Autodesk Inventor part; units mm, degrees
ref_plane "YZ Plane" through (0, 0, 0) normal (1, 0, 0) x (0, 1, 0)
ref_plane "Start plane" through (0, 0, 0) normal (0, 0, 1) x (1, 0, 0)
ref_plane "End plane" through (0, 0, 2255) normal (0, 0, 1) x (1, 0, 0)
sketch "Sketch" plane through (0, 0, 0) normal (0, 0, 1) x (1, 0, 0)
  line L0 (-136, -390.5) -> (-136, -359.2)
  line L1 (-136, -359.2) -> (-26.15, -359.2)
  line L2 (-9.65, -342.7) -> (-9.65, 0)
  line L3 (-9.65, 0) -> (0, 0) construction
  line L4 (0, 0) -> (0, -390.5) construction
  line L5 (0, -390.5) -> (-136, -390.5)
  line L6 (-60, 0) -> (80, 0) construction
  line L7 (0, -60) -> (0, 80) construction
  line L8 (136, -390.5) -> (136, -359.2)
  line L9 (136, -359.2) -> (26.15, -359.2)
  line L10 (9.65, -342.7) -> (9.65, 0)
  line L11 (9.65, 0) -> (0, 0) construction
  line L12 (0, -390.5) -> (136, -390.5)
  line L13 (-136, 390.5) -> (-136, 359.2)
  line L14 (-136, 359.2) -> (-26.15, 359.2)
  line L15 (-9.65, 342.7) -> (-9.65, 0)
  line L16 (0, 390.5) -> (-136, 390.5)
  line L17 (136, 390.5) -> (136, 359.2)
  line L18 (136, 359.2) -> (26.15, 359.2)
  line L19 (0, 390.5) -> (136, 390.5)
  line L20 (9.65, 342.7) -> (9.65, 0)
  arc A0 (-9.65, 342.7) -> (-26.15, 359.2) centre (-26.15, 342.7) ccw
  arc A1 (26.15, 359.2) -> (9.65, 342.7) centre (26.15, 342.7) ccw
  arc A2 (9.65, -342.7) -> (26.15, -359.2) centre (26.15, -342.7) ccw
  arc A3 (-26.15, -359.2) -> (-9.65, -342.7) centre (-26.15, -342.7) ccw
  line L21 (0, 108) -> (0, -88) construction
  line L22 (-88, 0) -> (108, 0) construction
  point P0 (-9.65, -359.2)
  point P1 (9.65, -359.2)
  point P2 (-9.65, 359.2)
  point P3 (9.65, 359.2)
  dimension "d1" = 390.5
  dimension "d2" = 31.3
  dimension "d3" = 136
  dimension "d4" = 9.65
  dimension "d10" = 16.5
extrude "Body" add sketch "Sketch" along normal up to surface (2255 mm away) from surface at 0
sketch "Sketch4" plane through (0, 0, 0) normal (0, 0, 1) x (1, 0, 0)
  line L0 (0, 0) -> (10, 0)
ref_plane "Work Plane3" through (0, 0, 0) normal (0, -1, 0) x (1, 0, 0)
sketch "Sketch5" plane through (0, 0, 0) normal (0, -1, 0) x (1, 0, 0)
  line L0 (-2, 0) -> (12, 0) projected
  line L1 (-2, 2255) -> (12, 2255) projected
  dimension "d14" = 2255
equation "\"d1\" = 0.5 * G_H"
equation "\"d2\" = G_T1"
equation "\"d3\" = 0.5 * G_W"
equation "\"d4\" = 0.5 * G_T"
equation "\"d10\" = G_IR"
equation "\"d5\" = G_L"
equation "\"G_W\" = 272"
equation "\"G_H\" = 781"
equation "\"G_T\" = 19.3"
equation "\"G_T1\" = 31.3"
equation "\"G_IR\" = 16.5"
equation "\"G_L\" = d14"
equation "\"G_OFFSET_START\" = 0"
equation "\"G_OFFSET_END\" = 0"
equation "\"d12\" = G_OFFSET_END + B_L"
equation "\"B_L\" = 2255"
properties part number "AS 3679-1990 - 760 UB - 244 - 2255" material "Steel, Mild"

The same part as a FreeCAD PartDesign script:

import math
import FreeCAD as App
import Part
import Sketcher
from FreeCAD import Vector

doc = App.newDocument("Part")
body = doc.addObject("PartDesign::Body", "Body")

sketch1 = body.newObject("Sketcher::SketchObject", "Sketch")
sketch1.AttachmentSupport = (doc.getObject("XY_Plane"), [""])
sketch1.MapMode = "FlatFace"
sketch1.addGeometry(Part.LineSegment(Vector(-136, -359, 0), Vector(-136, -390, 0)), False)
sketch1.addGeometry(Part.LineSegment(Vector(-136, -390, 0), Vector(136, -390, 0)), False)
sketch1.addGeometry(Part.LineSegment(Vector(136, -390, 0), Vector(136, -359, 0)), False)
sketch1.addGeometry(Part.LineSegment(Vector(136, -359, 0), Vector(26, -359, 0)), False)
sketch1.addGeometry(Part.ArcOfCircle(Part.Circle(Vector(26, -343, 0), Vector(0, 0, 1), 16), math.radians(180), math.radians(270)), False)
sketch1.addGeometry(Part.LineSegment(Vector(10, -343, 0), Vector(10, 343, 0)), False)
sketch1.addGeometry(Part.ArcOfCircle(Part.Circle(Vector(26, 343, 0), Vector(0, 0, 1), 16), math.radians(90), math.radians(180)), False)
sketch1.addGeometry(Part.LineSegment(Vector(26, 359, 0), Vector(136, 359, 0)), False)
sketch1.addGeometry(Part.LineSegment(Vector(136, 359, 0), Vector(136, 390, 0)), False)
sketch1.addGeometry(Part.LineSegment(Vector(136, 390, 0), Vector(-136, 390, 0)), False)
sketch1.addGeometry(Part.LineSegment(Vector(-136, 390, 0), Vector(-136, 359, 0)), False)
sketch1.addGeometry(Part.LineSegment(Vector(-136, 359, 0), Vector(-26, 359, 0)), False)
sketch1.addGeometry(Part.ArcOfCircle(Part.Circle(Vector(-26, 343, 0), Vector(0, 0, 1), 16), math.radians(0), math.radians(90)), False)
sketch1.addGeometry(Part.LineSegment(Vector(-10, 343, 0), Vector(-10, -343, 0)), False)
sketch1.addGeometry(Part.ArcOfCircle(Part.Circle(Vector(-26, -343, 0), Vector(0, 0, 1), 16), math.radians(-90), math.radians(0)), False)
sketch1.addGeometry(Part.LineSegment(Vector(-26, -359, 0), Vector(-136, -359, 0)), False)
sketch1.addConstraint(Sketcher.Constraint("Coincident", 0, 2, 1, 1))
sketch1.addConstraint(Sketcher.Constraint("Coincident", 1, 2, 2, 1))
sketch1.addConstraint(Sketcher.Constraint("Coincident", 2, 2, 3, 1))
sketch1.addConstraint(Sketcher.Constraint("Tangent", 3, 2, 4, 2))
sketch1.addConstraint(Sketcher.Constraint("Tangent", 4, 1, 5, 1))
sketch1.addConstraint(Sketcher.Constraint("Tangent", 5, 2, 6, 2))
sketch1.addConstraint(Sketcher.Constraint("Tangent", 6, 1, 7, 1))
sketch1.addConstraint(Sketcher.Constraint("Coincident", 7, 2, 8, 1))
sketch1.addConstraint(Sketcher.Constraint("Coincident", 8, 2, 9, 1))
sketch1.addConstraint(Sketcher.Constraint("Coincident", 9, 2, 10, 1))
sketch1.addConstraint(Sketcher.Constraint("Coincident", 10, 2, 11, 1))
sketch1.addConstraint(Sketcher.Constraint("Tangent", 11, 2, 12, 2))
sketch1.addConstraint(Sketcher.Constraint("Tangent", 12, 1, 13, 1))
sketch1.addConstraint(Sketcher.Constraint("Tangent", 13, 2, 14, 2))
sketch1.addConstraint(Sketcher.Constraint("Tangent", 14, 1, 15, 1))
sketch1.addConstraint(Sketcher.Constraint("Coincident", 15, 2, 0, 1))
sketch1.addConstraint(Sketcher.Constraint("Vertical", 0))
sketch1.addConstraint(Sketcher.Constraint("Horizontal", 1))
sketch1.addConstraint(Sketcher.Constraint("Vertical", 2))
sketch1.addConstraint(Sketcher.Constraint("Horizontal", 3))
sketch1.addConstraint(Sketcher.Constraint("Vertical", 5))
sketch1.addConstraint(Sketcher.Constraint("Horizontal", 7))
sketch1.addConstraint(Sketcher.Constraint("Vertical", 8))
sketch1.addConstraint(Sketcher.Constraint("Horizontal", 9))
sketch1.addConstraint(Sketcher.Constraint("Vertical", 10))
sketch1.addConstraint(Sketcher.Constraint("Horizontal", 11))
sketch1.addConstraint(Sketcher.Constraint("Vertical", 13))
sketch1.addConstraint(Sketcher.Constraint("Horizontal", 15))
sketch1.addConstraint(Sketcher.Constraint("Equal", 4, 6))
sketch1.addConstraint(Sketcher.Constraint("Equal", 6, 12))
sketch1.addConstraint(Sketcher.Constraint("Equal", 12, 14))
sketch1.addConstraint(Sketcher.Constraint("Symmetric", 4, 3, 12, 3, -1, 1))
sketch1.addConstraint(Sketcher.Constraint("Symmetric", 0, 2, 8, 2, -1, 1))
sketch1.addConstraint(Sketcher.Constraint("Symmetric", 7, 2, 10, 2, -2))
sketch1.addConstraint(Sketcher.Constraint("Symmetric", 2, 2, 15, 2, -2))
sketch1.addConstraint(Sketcher.Constraint("Radius", 4, 16.5))
sketch1.addConstraint(Sketcher.Constraint("DistanceY", 0, 2, 0, 1, 31.3))
sketch1.addConstraint(Sketcher.Constraint("DistanceX", 0, 2, -1, 1, 136.0))
sketch1.addConstraint(Sketcher.Constraint("DistanceY", 0, 2, -1, 1, 390.5))
sketch1.addConstraint(Sketcher.Constraint("DistanceX", -1, 1, 4, 1, 9.65))
pad1 = body.newObject("PartDesign::Pad", "Pad")
pad1.Profile = sketch1
pad1.Length = 2255

doc.recompute()
